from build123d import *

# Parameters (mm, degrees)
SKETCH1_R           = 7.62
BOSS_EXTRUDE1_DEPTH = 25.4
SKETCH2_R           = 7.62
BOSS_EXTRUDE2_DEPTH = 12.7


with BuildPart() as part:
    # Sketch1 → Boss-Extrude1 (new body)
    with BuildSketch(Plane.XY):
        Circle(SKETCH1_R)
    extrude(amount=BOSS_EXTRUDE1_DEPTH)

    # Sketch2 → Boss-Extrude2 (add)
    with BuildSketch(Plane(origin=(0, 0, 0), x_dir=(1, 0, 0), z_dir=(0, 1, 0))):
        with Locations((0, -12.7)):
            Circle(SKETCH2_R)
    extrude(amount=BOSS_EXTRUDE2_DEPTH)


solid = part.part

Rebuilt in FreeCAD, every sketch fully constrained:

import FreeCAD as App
import Part
import Sketcher
Q = App.Units.Quantity

doc = App.newDocument("Part")
params = doc.addObject("Spreadsheet::Sheet", "Params")
for row, (alias, value) in enumerate([
    ("sketch1_diameter", "0.6 in"),
    ("pad1_length", "1 in"),
    ("sketch2_diameter", "0.6 in"),
    ("pad2_length", "0.5 in"),
], start=1):
    params.set(f"A{row}", alias)
    params.set(f"B{row}", "=" + value)
    params.setAlias(f"B{row}", alias)

body = doc.addObject("PartDesign::Body", "Body")

sketch1 = doc.addObject("Sketcher::SketchObject", "Sketch")
body.addObject(sketch1)
sketch1.AttachmentSupport = (doc.XY_Plane, [""])
sketch1.MapMode = "FlatFace"
sketch1.addGeometry(Part.Circle(App.Vector(0, 0, 0), App.Vector(0, 0, 1), 7.62), False)
sketch1.addConstraint([
    Sketcher.Constraint("Coincident", 0, 3, -1, 1),
    Sketcher.Constraint("Diameter", 0, Q("0.6 in")),
])
sketch1.setExpression("Constraints[1]", "Params.sketch1_diameter")
pad1 = doc.addObject("PartDesign::Pad", "Pad")
body.addObject(pad1)
pad1.Profile = sketch1
pad1.setExpression("Length", "Params.pad1_length")

sketch2 = doc.addObject("Sketcher::SketchObject", "Sketch001")
body.addObject(sketch2)
sketch2.AttachmentSupport = (doc.XZ_Plane, [""])
sketch2.MapMode = "FlatFace"
sketch2.addGeometry(Part.Circle(App.Vector(0, 12.7, 0), App.Vector(0, 0, 1), 7.62), False)
sketch2.addConstraint([
    Sketcher.Constraint("PointOnObject", 0, 3, -2),
    Sketcher.Constraint("Diameter", 0, Q("0.6 in")),
    Sketcher.Constraint("DistanceY", -1, 1, 0, 3, Q("0.5 in")),
])
sketch2.setExpression("Constraints[1]", "Params.sketch2_diameter")
pad2 = doc.addObject("PartDesign::Pad", "Pad001")
body.addObject(pad2)
pad2.Profile = sketch2
pad2.setExpression("Length", "Params.pad2_length")
pad2.Reversed = True

doc.recompute()
